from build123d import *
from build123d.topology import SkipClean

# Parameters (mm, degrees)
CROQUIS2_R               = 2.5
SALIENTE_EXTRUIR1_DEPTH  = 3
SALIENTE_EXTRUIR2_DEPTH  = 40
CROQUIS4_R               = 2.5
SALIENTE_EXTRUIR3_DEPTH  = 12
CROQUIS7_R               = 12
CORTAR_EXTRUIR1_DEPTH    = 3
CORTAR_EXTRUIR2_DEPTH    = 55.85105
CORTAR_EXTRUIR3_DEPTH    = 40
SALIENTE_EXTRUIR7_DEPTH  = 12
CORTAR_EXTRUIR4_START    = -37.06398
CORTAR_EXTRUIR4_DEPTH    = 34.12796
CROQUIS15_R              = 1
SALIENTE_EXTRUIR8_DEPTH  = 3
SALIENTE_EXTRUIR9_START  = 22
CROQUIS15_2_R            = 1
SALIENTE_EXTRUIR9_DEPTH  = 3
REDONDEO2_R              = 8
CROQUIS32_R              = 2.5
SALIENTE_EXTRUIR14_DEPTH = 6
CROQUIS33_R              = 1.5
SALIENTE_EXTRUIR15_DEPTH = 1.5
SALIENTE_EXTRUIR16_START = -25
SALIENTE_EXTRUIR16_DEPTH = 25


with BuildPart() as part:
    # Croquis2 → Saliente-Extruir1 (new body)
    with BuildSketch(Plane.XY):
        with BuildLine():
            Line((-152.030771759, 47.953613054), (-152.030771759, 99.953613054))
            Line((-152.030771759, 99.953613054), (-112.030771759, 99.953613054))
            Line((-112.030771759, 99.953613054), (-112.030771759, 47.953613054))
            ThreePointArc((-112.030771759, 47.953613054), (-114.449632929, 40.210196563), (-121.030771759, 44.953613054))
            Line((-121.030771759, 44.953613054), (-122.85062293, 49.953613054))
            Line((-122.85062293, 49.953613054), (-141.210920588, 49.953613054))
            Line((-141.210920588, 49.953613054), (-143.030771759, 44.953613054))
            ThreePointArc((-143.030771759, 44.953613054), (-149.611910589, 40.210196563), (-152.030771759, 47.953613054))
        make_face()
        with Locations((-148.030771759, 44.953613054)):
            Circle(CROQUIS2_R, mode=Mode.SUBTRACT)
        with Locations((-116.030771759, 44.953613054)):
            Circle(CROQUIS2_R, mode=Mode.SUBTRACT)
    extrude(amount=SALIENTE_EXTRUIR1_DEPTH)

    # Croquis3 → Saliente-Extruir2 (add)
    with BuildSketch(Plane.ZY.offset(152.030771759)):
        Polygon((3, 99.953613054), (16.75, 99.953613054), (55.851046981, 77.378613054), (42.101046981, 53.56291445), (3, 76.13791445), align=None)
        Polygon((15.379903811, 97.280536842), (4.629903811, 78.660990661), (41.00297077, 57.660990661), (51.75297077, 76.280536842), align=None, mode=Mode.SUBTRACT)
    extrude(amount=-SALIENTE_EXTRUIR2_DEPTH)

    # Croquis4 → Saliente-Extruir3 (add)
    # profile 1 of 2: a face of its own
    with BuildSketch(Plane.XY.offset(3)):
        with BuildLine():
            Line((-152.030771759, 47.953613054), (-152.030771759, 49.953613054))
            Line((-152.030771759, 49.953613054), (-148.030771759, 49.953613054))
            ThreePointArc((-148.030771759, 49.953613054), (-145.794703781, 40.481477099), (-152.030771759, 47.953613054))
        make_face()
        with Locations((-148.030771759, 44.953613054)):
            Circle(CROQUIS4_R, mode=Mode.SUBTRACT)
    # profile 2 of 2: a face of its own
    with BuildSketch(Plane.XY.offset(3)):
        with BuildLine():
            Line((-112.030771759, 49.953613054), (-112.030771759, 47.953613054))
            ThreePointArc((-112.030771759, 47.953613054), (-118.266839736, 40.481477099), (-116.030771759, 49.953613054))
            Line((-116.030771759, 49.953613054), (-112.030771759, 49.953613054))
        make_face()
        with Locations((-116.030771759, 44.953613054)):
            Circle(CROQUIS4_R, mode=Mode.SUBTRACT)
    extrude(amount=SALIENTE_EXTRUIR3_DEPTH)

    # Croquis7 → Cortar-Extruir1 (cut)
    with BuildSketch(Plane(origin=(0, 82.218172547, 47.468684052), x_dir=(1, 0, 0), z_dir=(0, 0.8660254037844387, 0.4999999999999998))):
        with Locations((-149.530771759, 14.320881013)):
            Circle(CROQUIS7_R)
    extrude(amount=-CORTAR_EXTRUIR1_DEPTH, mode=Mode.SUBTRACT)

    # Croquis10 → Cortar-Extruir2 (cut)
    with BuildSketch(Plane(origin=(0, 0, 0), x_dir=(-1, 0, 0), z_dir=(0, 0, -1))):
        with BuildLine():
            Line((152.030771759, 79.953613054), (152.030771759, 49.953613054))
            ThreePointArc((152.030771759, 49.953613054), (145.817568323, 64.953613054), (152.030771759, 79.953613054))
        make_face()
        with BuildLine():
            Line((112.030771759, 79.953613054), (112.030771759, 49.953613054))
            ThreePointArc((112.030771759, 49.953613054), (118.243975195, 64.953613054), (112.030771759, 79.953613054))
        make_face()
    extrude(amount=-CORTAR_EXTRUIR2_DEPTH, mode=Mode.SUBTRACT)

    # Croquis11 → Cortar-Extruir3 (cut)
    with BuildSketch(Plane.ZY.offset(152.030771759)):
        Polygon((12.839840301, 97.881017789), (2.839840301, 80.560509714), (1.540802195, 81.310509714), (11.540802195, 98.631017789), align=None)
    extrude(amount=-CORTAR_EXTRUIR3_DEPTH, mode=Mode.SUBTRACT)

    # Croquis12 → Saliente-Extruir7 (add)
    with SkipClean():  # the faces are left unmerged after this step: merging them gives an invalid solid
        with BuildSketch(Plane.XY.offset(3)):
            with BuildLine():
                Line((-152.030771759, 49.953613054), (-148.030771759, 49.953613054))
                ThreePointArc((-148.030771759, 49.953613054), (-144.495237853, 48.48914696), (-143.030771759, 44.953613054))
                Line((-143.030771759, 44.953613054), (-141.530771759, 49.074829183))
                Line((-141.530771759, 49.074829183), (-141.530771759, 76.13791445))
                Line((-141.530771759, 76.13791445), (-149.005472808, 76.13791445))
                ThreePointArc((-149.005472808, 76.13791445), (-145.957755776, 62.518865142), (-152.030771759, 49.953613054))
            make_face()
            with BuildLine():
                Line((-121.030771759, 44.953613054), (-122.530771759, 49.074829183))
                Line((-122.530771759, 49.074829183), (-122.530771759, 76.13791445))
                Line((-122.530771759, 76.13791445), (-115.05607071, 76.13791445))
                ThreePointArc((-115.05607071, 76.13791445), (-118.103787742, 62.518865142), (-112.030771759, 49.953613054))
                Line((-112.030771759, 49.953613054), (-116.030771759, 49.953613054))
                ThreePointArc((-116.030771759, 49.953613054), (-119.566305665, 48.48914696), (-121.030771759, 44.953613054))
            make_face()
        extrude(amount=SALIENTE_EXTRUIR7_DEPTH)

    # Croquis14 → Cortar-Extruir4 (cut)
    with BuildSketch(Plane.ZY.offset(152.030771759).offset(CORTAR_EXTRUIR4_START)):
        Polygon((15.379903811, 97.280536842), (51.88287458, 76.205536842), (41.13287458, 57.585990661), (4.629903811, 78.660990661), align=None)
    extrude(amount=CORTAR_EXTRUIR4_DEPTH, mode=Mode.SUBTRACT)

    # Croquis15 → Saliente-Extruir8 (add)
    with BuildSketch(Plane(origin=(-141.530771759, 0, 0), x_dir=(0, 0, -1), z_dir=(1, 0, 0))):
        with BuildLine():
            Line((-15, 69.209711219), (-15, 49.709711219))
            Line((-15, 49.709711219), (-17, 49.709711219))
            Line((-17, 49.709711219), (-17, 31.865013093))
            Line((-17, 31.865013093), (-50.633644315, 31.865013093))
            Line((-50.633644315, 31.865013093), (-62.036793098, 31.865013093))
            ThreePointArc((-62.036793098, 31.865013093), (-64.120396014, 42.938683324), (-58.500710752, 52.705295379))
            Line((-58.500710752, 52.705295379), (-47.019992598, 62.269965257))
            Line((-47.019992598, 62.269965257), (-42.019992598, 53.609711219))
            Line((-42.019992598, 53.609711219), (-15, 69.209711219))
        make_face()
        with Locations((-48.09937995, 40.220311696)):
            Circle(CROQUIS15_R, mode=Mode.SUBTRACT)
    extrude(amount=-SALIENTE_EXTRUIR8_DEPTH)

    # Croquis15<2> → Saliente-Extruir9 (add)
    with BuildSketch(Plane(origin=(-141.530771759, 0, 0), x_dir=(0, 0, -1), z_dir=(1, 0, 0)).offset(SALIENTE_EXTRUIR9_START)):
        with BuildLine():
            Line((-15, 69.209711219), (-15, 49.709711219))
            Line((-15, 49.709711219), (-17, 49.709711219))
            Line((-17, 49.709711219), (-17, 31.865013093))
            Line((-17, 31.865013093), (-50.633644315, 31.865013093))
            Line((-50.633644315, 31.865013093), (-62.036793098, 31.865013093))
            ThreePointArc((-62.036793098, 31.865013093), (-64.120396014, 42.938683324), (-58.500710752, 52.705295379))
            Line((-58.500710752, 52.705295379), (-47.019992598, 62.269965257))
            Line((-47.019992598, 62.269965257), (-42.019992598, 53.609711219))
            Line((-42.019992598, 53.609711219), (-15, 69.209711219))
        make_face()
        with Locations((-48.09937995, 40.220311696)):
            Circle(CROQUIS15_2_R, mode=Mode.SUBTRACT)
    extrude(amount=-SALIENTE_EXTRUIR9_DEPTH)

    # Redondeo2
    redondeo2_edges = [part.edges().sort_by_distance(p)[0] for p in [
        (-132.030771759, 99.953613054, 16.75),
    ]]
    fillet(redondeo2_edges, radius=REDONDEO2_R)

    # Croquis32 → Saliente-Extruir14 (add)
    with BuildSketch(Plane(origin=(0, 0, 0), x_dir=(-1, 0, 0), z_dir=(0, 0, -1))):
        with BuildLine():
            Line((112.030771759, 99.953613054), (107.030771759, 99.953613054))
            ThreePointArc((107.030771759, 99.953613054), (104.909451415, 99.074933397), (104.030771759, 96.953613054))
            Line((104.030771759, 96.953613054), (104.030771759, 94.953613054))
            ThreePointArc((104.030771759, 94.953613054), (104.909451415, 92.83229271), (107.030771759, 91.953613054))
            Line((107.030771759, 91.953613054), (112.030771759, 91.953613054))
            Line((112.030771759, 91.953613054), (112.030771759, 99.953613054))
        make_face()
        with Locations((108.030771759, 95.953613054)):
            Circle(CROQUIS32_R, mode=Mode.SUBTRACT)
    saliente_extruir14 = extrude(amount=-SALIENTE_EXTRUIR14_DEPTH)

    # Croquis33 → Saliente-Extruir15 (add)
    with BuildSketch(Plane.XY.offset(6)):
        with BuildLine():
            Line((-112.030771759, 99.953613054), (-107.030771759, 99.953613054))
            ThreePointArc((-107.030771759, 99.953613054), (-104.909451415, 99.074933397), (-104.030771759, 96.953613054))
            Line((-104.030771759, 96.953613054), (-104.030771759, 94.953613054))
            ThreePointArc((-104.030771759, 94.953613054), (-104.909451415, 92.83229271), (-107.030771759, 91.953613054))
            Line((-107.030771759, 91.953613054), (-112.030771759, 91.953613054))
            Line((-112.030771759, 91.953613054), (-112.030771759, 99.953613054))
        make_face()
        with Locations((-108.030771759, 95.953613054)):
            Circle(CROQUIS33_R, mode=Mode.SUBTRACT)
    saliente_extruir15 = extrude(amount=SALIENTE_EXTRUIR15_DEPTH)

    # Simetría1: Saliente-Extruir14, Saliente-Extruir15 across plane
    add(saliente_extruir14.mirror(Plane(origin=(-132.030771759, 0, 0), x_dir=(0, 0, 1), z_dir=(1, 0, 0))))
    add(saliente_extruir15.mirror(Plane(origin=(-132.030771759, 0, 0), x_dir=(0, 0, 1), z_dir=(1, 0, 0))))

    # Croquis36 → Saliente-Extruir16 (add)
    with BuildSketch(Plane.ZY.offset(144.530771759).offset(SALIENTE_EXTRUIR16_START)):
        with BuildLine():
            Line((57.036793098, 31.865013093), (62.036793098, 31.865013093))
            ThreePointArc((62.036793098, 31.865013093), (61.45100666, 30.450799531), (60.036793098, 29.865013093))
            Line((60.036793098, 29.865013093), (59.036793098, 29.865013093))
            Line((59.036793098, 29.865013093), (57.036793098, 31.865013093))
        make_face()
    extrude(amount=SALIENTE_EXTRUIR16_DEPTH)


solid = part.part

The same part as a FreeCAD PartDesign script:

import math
import FreeCAD as App
import Part
import Sketcher
Q = App.Units.Quantity


def edges_at(feature, points):
    """Names of the edges that pass closest to the given points."""
    edges = feature.Shape.Edges
    near = lambda p: min(range(len(edges)), key=lambda i: edges[i].distToShape(Part.Vertex(*p))[0])
    return sorted({f"Edge{near(p) + 1}" for p in points})

doc = App.newDocument("Part")
body = doc.addObject("PartDesign::Body", "Body")

# Sketch on XY plane
sketch1 = body.newObject("Sketcher::SketchObject", "Sketch")
sketch1.AttachmentSupport = (doc.getObject("XY_Plane"), [""])
sketch1.MapMode = "FlatFace"
sketch1.addGeometry(Part.LineSegment(App.Vector(-152, 100, 0), App.Vector(-152, 48, 0)), False)
sketch1.addGeometry(Part.ArcOfCircle(Part.Circle(App.Vector(-148, 45, 0), App.Vector(0, 0, 1), 5), math.radians(143), math.radians(360)), False)
sketch1.addGeometry(Part.LineSegment(App.Vector(-143, 45, 0), App.Vector(-141.2, 50, 0)), False)
sketch1.addGeometry(Part.LineSegment(App.Vector(-141.2, 50, 0), App.Vector(-122.9, 50, 0)), False)
sketch1.addGeometry(Part.LineSegment(App.Vector(-122.9, 50, 0), App.Vector(-121, 45, 0)), False)
sketch1.addGeometry(Part.ArcOfCircle(Part.Circle(App.Vector(-116, 45, 0), App.Vector(0, 0, 1), 5), math.radians(180), math.radians(397)), False)
sketch1.addGeometry(Part.LineSegment(App.Vector(-112, 48, 0), App.Vector(-112, 100, 0)), False)
sketch1.addGeometry(Part.LineSegment(App.Vector(-112, 100, 0), App.Vector(-152, 100, 0)), False)
sketch1.addGeometry(Part.Circle(App.Vector(-116, 45, 0), App.Vector(0, 0, 1), 2.5), False)
sketch1.addGeometry(Part.Circle(App.Vector(-148, 45, 0), App.Vector(0, 0, 1), 2.5), False)
sketch1.addConstraint(Sketcher.Constraint("Coincident", 0, 2, 1, 1))
sketch1.addConstraint(Sketcher.Constraint("Coincident", 1, 2, 2, 1))
sketch1.addConstraint(Sketcher.Constraint("Coincident", 2, 2, 3, 1))
sketch1.addConstraint(Sketcher.Constraint("Coincident", 3, 2, 4, 1))
sketch1.addConstraint(Sketcher.Constraint("Coincident", 4, 2, 5, 1))
sketch1.addConstraint(Sketcher.Constraint("Coincident", 5, 2, 6, 1))
sketch1.addConstraint(Sketcher.Constraint("Coincident", 6, 2, 7, 1))
sketch1.addConstraint(Sketcher.Constraint("Coincident", 7, 2, 0, 1))
sketch1.addConstraint(Sketcher.Constraint("Vertical", 0))
sketch1.addConstraint(Sketcher.Constraint("Horizontal", 3))
sketch1.addConstraint(Sketcher.Constraint("Vertical", 6))
sketch1.addConstraint(Sketcher.Constraint("Horizontal", 7))
sketch1.addConstraint(Sketcher.Constraint("Coincident", 8, 3, 5, 3))
sketch1.addConstraint(Sketcher.Constraint("Coincident", 9, 3, 1, 3))
sketch1.addConstraint(Sketcher.Constraint("Equal", 1, 5))
sketch1.addConstraint(Sketcher.Constraint("Equal", 8, 9))
sketch1.addConstraint(Sketcher.Constraint("Horizontal", 1, 3, 5, 3))
sketch1.addConstraint(Sketcher.Constraint("Horizontal", 9, 3, 1, 2))
sketch1.addConstraint(Sketcher.Constraint("Horizontal", 1, 2, 4, 2))
sketch1.addConstraint(Sketcher.Constraint("Horizontal", 0, 2, 5, 2))
sketch1.addConstraint(Sketcher.Constraint("Equal", 2, 4))
sketch1.addConstraint(Sketcher.Constraint("Diameter", 8, 5.0))
sketch1.addConstraint(Sketcher.Constraint("Radius", 1, 5.0))
sketch1.addConstraint(Sketcher.Constraint("DistanceX", 7, 2, 7, 1, 40.0))
sketch1.addConstraint(Sketcher.Constraint("DistanceY", 0, 2, 0, 1, 52.0))
sketch1.addConstraint(Sketcher.Constraint("Angle", 2, Q("70 deg")))
sketch1.addConstraint(Sketcher.Constraint("DistanceX", 1, 3, 5, 3, 32.0))
sketch1.addConstraint(Sketcher.Constraint("DistanceY", 1, 2, 2, 2, 5.0))
sketch1.addConstraint(Sketcher.Constraint("DistanceX", 1, 3, -1, 1, 148.030772))
sketch1.addConstraint(Sketcher.Constraint("DistanceY", -1, 1, 1, 3, 44.953613))
pad1 = body.newObject("PartDesign::Pad", "Pad")
pad1.Profile = sketch1
pad1.Length = 3

# Sketch on YZ plane
sketch2 = body.newObject("Sketcher::SketchObject", "Sketch001")
sketch2.AttachmentSupport = (doc.getObject("YZ_Plane"), [""])
sketch2.MapMode = "FlatFace"
sketch2.AttachmentOffset = App.Placement(App.Vector(0, 0, -152.030772), App.Rotation())
sketch2.addGeometry(Part.LineSegment(App.Vector(100, 17, 0), App.Vector(100, 3, 0)), False)
sketch2.addGeometry(Part.LineSegment(App.Vector(100, 3, 0), App.Vector(76, 3, 0)), False)
sketch2.addGeometry(Part.LineSegment(App.Vector(76, 3, 0), App.Vector(54, 42, 0)), False)
sketch2.addGeometry(Part.LineSegment(App.Vector(54, 42, 0), App.Vector(77, 56, 0)), False)
sketch2.addGeometry(Part.LineSegment(App.Vector(77, 56, 0), App.Vector(100, 17, 0)), False)
sketch2.addGeometry(Part.LineSegment(App.Vector(97, 15, 0), App.Vector(76, 52, 0)), False)
sketch2.addGeometry(Part.LineSegment(App.Vector(76, 52, 0), App.Vector(58, 41, 0)), False)
sketch2.addGeometry(Part.LineSegment(App.Vector(58, 41, 0), App.Vector(79, 5, 0)), False)
sketch2.addGeometry(Part.LineSegment(App.Vector(79, 5, 0), App.Vector(97, 15, 0)), False)
sketch2.addConstraint(Sketcher.Constraint("Coincident", 0, 2, 1, 1))
sketch2.addConstraint(Sketcher.Constraint("Coincident", 1, 2, 2, 1))
sketch2.addConstraint(Sketcher.Constraint("Coincident", 2, 2, 3, 1))
sketch2.addConstraint(Sketcher.Constraint("Coincident", 3, 2, 4, 1))
sketch2.addConstraint(Sketcher.Constraint("Coincident", 4, 2, 0, 1))
sketch2.addConstraint(Sketcher.Constraint("Coincident", 5, 2, 6, 1))
sketch2.addConstraint(Sketcher.Constraint("Coincident", 6, 2, 7, 1))
sketch2.addConstraint(Sketcher.Constraint("Coincident", 7, 2, 8, 1))
sketch2.addConstraint(Sketcher.Constraint("Coincident", 8, 2, 5, 1))
sketch2.addConstraint(Sketcher.Constraint("Vertical", 0))
sketch2.addConstraint(Sketcher.Constraint("Horizontal", 1))
sketch2.addConstraint(Sketcher.Constraint("Perpendicular", 2, 3))
sketch2.addConstraint(Sketcher.Constraint("Perpendicular", 3, 4))
sketch2.addConstraint(Sketcher.Constraint("Parallel", 4, 5))
sketch2.addConstraint(Sketcher.Constraint("Perpendicular", 5, 6))
sketch2.addConstraint(Sketcher.Constraint("Perpendicular", 6, 7))
sketch2.addConstraint(Sketcher.Constraint("Perpendicular", 7, 8))
sketch2.addConstraint(Sketcher.Constraint("Equal", 2, 4))
sketch2.addConstraint(Sketcher.Constraint("Angle", 2, Q("120 deg")))
sketch2.addConstraint(Sketcher.Constraint("Distance", 5, 42.0))
sketch2.addConstraint(Sketcher.Constraint("DistanceY", -1, 1, 0, 2, 3.0))
sketch2.addConstraint(Sketcher.Constraint("Distance", 3, 27.5))
sketch2.addConstraint(Sketcher.Constraint("Distance", 6, 21.5))
sketch2.addConstraint(Sketcher.Constraint("Distance", 2, 45.15))
sketch2.addConstraint(Sketcher.Constraint("DistanceY", -1, 1, 5, 2, 51.752971))
sketch2.addConstraint(Sketcher.Constraint("DistanceX", -1, 1, 6, 2, 57.660991))
sketch2.addConstraint(Sketcher.Constraint("DistanceX", -1, 1, 0, 2, 99.953613))
pad2 = body.newObject("PartDesign::Pad", "Pad001")
pad2.Profile = sketch2
pad2.Length = 40

# Sketch on XY plane
sketch3 = body.newObject("Sketcher::SketchObject", "Sketch002")
sketch3.AttachmentSupport = (doc.getObject("XY_Plane"), [""])
sketch3.MapMode = "FlatFace"
sketch3.AttachmentOffset = App.Placement(App.Vector(0, 0, 3), App.Rotation())
sketch3.addGeometry(Part.LineSegment(App.Vector(-152, 50, 0), App.Vector(-152, 48, 0)), False)
sketch3.addGeometry(Part.ArcOfCircle(Part.Circle(App.Vector(-148, 45, 0), App.Vector(0, 0, 1), 5), math.radians(143), math.radians(450)), False)
sketch3.addGeometry(Part.LineSegment(App.Vector(-148, 50, 0), App.Vector(-152, 50, 0)), False)
sketch3.addGeometry(Part.Circle(App.Vector(-148, 45, 0), App.Vector(0, 0, 1), 2.5), False)
sketch3.addGeometry(Part.LineSegment(App.Vector(-112, 48, 0), App.Vector(-112, 50, 0)), False)
sketch3.addGeometry(Part.LineSegment(App.Vector(-112, 50, 0), App.Vector(-116, 50, 0)), False)
sketch3.addGeometry(Part.ArcOfCircle(Part.Circle(App.Vector(-116, 45, 0), App.Vector(0, 0, 1), 5), math.radians(90), math.radians(397)), False)
sketch3.addGeometry(Part.Circle(App.Vector(-116, 45, 0), App.Vector(0, 0, 1), 2.5), False)
sketch3.addConstraint(Sketcher.Constraint("Coincident", 0, 2, 1, 1))
sketch3.addConstraint(Sketcher.Constraint("Tangent", 1, 2, 2, 1))
sketch3.addConstraint(Sketcher.Constraint("Coincident", 2, 2, 0, 1))
sketch3.addConstraint(Sketcher.Constraint("Coincident", 4, 2, 5, 1))
sketch3.addConstraint(Sketcher.Constraint("Tangent", 5, 2, 6, 1))
sketch3.addConstraint(Sketcher.Constraint("Coincident", 6, 2, 4, 1))
sketch3.addConstraint(Sketcher.Constraint("Vertical", 0))
sketch3.addConstraint(Sketcher.Constraint("Horizontal", 2))
sketch3.addConstraint(Sketcher.Constraint("Vertical", 4))
sketch3.addConstraint(Sketcher.Constraint("Horizontal", 5))
sketch3.addConstraint(Sketcher.Constraint("Coincident", 3, 3, 1, 3))
sketch3.addConstraint(Sketcher.Constraint("Coincident", 7, 3, 6, 3))
sketch3.addConstraint(Sketcher.Constraint("Equal", 1, 6))
sketch3.addConstraint(Sketcher.Constraint("Equal", 3, 7))
sketch3.addConstraint(Sketcher.Constraint("Horizontal", 3, 3, 6, 3))
sketch3.addConstraint(Sketcher.Constraint("Horizontal", 0, 2, 6, 2))
sketch3.addConstraint(Sketcher.Constraint("Diameter", 3, 5.0))
sketch3.addConstraint(Sketcher.Constraint("Radius", 1, 5.0))
sketch3.addConstraint(Sketcher.Constraint("DistanceX", 2, 2, 2, 1, 4.0))
sketch3.addConstraint(Sketcher.Constraint("DistanceX", 1, 3, 6, 3, 32.0))
sketch3.addConstraint(Sketcher.Constraint("DistanceX", 1, 3, -1, 1, 148.030772))
sketch3.addConstraint(Sketcher.Constraint("DistanceY", -1, 1, 1, 3, 44.953613))
pad3 = body.newObject("PartDesign::Pad", "Pad002")
pad3.Profile = sketch3
pad3.Length = 12

# Sketch on an angled plane
sketch4 = body.newObject("Sketcher::SketchObject", "Sketch003")
sketch4.Placement = App.Placement(App.Vector(0, 82.218173, 47.468684), App.Rotation(App.Vector(1, 0, 0), App.Vector(0, 0.5, -0.866025404), App.Vector(0, 0.866025404, 0.5), "ZXY"))
sketch4.addGeometry(Part.Circle(App.Vector(-150, 14, 0), App.Vector(0, 0, 1), 12), False)
sketch4.addConstraint(Sketcher.Constraint("Diameter", 0, 24.0))
sketch4.addConstraint(Sketcher.Constraint("DistanceX", 0, 3, -1, 1, 149.530772))
sketch4.addConstraint(Sketcher.Constraint("DistanceY", -1, 1, 0, 3, 14.320881))
pocket1 = body.newObject("PartDesign::Pocket", "Pocket")
pocket1.Profile = sketch4
pocket1.Length = 3

# Sketch on XY plane
sketch5 = body.newObject("Sketcher::SketchObject", "Sketch004")
sketch5.AttachmentSupport = (doc.getObject("XY_Plane"), [""])
sketch5.MapMode = "FlatFace"
sketch5.addGeometry(Part.LineSegment(App.Vector(-152, 50, 0), App.Vector(-152, 80, 0)), False)
sketch5.addGeometry(Part.ArcOfCircle(Part.Circle(App.Vector(-167, 65, 0), App.Vector(0, 0, 1), 21), math.radians(-45), math.radians(45)), False)
sketch5.addGeometry(Part.LineSegment(App.Vector(-112, 80, 0), App.Vector(-112, 50, 0)), False)
sketch5.addGeometry(Part.ArcOfCircle(Part.Circle(App.Vector(-97, 65, 0), App.Vector(0, 0, 1), 21), math.radians(135), math.radians(225)), False)
sketch5.addConstraint(Sketcher.Constraint("Coincident", 0, 1, 1, 1))
sketch5.addConstraint(Sketcher.Constraint("Coincident", 1, 2, 0, 2))
sketch5.addConstraint(Sketcher.Constraint("Coincident", 2, 1, 3, 1))
sketch5.addConstraint(Sketcher.Constraint("Coincident", 3, 2, 2, 2))
sketch5.addConstraint(Sketcher.Constraint("Vertical", 0))
sketch5.addConstraint(Sketcher.Constraint("Vertical", 2))
sketch5.addConstraint(Sketcher.Constraint("Equal", 1, 3))
sketch5.addConstraint(Sketcher.Constraint("Horizontal", 1, 3, 3, 3))
sketch5.addConstraint(Sketcher.Constraint("Horizontal", 1, 2, 2, 1))
sketch5.addConstraint(Sketcher.Constraint("DistanceY", 0, 1, 0, 2, 30.0))
sketch5.addConstraint(Sketcher.Constraint("DistanceX", 1, 3, 3, 3, 70.0))
sketch5.addConstraint(Sketcher.Constraint("DistanceX", 1, 3, 0, 1, 15.0))
sketch5.addConstraint(Sketcher.Constraint("DistanceX", 1, 3, -1, 1, 167.030772))
sketch5.addConstraint(Sketcher.Constraint("DistanceY", -1, 1, 1, 3, 64.953613))
pocket2 = body.newObject("PartDesign::Pocket", "Pocket001")
pocket2.Profile = sketch5
pocket2.Length = 55.85105
pocket2.Reversed = True

# Sketch on YZ plane
sketch6 = body.newObject("Sketcher::SketchObject", "Sketch005")
sketch6.AttachmentSupport = (doc.getObject("YZ_Plane"), [""])
sketch6.MapMode = "FlatFace"
sketch6.AttachmentOffset = App.Placement(App.Vector(0, 0, -152.030772), App.Rotation())
sketch6.addGeometry(Part.LineSegment(App.Vector(80.6, 2.8, 0), App.Vector(97.9, 12.8, 0)), False)
sketch6.addGeometry(Part.LineSegment(App.Vector(97.9, 12.8, 0), App.Vector(98.6, 11.5, 0)), False)
sketch6.addGeometry(Part.LineSegment(App.Vector(98.6, 11.5, 0), App.Vector(81.3, 1.5, 0)), False)
sketch6.addGeometry(Part.LineSegment(App.Vector(81.3, 1.5, 0), App.Vector(80.6, 2.8, 0)), False)
sketch6.addConstraint(Sketcher.Constraint("Coincident", 0, 2, 1, 1))
sketch6.addConstraint(Sketcher.Constraint("Coincident", 1, 2, 2, 1))
sketch6.addConstraint(Sketcher.Constraint("Coincident", 2, 2, 3, 1))
sketch6.addConstraint(Sketcher.Constraint("Coincident", 3, 2, 0, 1))
sketch6.addConstraint(Sketcher.Constraint("Perpendicular", 0, 1))
sketch6.addConstraint(Sketcher.Constraint("Perpendicular", 1, 2))
sketch6.addConstraint(Sketcher.Constraint("Perpendicular", 2, 3))
sketch6.addConstraint(Sketcher.Constraint("Angle", 0, Q("30 deg")))
sketch6.addConstraint(Sketcher.Constraint("Distance", 0, 20.0))
sketch6.addConstraint(Sketcher.Constraint("Distance", 1, 1.5))
sketch6.addConstraint(Sketcher.Constraint("DistanceY", -1, 1, 0, 2, 12.83984))
sketch6.addConstraint(Sketcher.Constraint("DistanceX", -1, 1, 2, 2, 81.31051))
pocket3 = body.newObject("PartDesign::Pocket", "Pocket002")
pocket3.Profile = sketch6
pocket3.Length = 40
pocket3.Reversed = True

# Sketch on XY plane
sketch7 = body.newObject("Sketcher::SketchObject", "Sketch006")
sketch7.AttachmentSupport = (doc.getObject("XY_Plane"), [""])
sketch7.MapMode = "FlatFace"
sketch7.AttachmentOffset = App.Placement(App.Vector(0, 0, 3), App.Rotation())
sketch7.addGeometry(Part.LineSegment(App.Vector(-152, 50, 0), App.Vector(-148, 50, 0)), False)
sketch7.addGeometry(Part.ArcOfCircle(Part.Circle(App.Vector(-148, 45, 0), App.Vector(0, 0, 1), 5), math.radians(0), math.radians(90)), False)
sketch7.addGeometry(Part.LineSegment(App.Vector(-143, 45, 0), App.Vector(-141.5, 49.1, 0)), False)
sketch7.addGeometry(Part.LineSegment(App.Vector(-141.5, 49.1, 0), App.Vector(-141.5, 76.1, 0)), False)
sketch7.addGeometry(Part.LineSegment(App.Vector(-141.5, 76.1, 0), App.Vector(-149, 76.1, 0)), False)
sketch7.addGeometry(Part.ArcOfCircle(Part.Circle(App.Vector(-167, 65, 0), App.Vector(0, 0, 1), 21.2), math.radians(-45), math.radians(32)), False)
sketch7.addGeometry(Part.LineSegment(App.Vector(-122.5, 49.1, 0), App.Vector(-121, 45, 0)), False)
sketch7.addGeometry(Part.ArcOfCircle(Part.Circle(App.Vector(-116, 45, 0), App.Vector(0, 0, 1), 5), math.radians(90), math.radians(180)), False)
sketch7.addGeometry(Part.LineSegment(App.Vector(-116, 50, 0), App.Vector(-112, 50, 0)), False)
sketch7.addGeometry(Part.ArcOfCircle(Part.Circle(App.Vector(-97, 65, 0), App.Vector(0, 0, 1), 21.2), math.radians(148), math.radians(225)), False)
sketch7.addGeometry(Part.LineSegment(App.Vector(-115.1, 76.1, 0), App.Vector(-122.5, 76.1, 0)), False)
sketch7.addGeometry(Part.LineSegment(App.Vector(-122.5, 76.1, 0), App.Vector(-122.5, 49.1, 0)), False)
sketch7.addConstraint(Sketcher.Constraint("Tangent", 0, 2, 1, 2))
sketch7.addConstraint(Sketcher.Constraint("Coincident", 1, 1, 2, 1))
sketch7.addConstraint(Sketcher.Constraint("Coincident", 2, 2, 3, 1))
sketch7.addConstraint(Sketcher.Constraint("Coincident", 3, 2, 4, 1))
sketch7.addConstraint(Sketcher.Constraint("Coincident", 4, 2, 5, 2))
sketch7.addConstraint(Sketcher.Constraint("Coincident", 5, 1, 0, 1))
sketch7.addConstraint(Sketcher.Constraint("Coincident", 6, 2, 7, 2))
sketch7.addConstraint(Sketcher.Constraint("Tangent", 7, 1, 8, 1))
sketch7.addConstraint(Sketcher.Constraint("Coincident", 8, 2, 9, 2))
sketch7.addConstraint(Sketcher.Constraint("Coincident", 9, 1, 10, 1))
sketch7.addConstraint(Sketcher.Constraint("Coincident", 10, 2, 11, 1))
sketch7.addConstraint(Sketcher.Constraint("Coincident", 11, 2, 6, 1))
sketch7.addConstraint(Sketcher.Constraint("Horizontal", 0))
sketch7.addConstraint(Sketcher.Constraint("Vertical", 3))
sketch7.addConstraint(Sketcher.Constraint("Horizontal", 4))
sketch7.addConstraint(Sketcher.Constraint("Horizontal", 8))
sketch7.addConstraint(Sketcher.Constraint("Horizontal", 10))
sketch7.addConstraint(Sketcher.Constraint("Vertical", 11))
sketch7.addConstraint(Sketcher.Constraint("Equal", 1, 7))
sketch7.addConstraint(Sketcher.Constraint("Equal", 5, 9))
sketch7.addConstraint(Sketcher.Constraint("Horizontal", 1, 3, 7, 3))
sketch7.addConstraint(Sketcher.Constraint("Horizontal", 5, 3, 9, 3))
sketch7.addConstraint(Sketcher.Constraint("Horizontal", 7, 3, 1, 1))
sketch7.addConstraint(Sketcher.Constraint("Horizontal", 1, 1, 6, 2))
sketch7.addConstraint(Sketcher.Constraint("Horizontal", 4, 2, 9, 1))
sketch7.addConstraint(Sketcher.Constraint("Horizontal", 2, 2, 11, 2))
sketch7.addConstraint(Sketcher.Constraint("Equal", 0, 8))
sketch7.addConstraint(Sketcher.Constraint("Equal", 4, 10))
sketch7.addConstraint(Sketcher.Constraint("Radius", 1, 5.0))
sketch7.addConstraint(Sketcher.Constraint("DistanceX", 0, 1, 0, 2, 4.0))
sketch7.addConstraint(Sketcher.Constraint("Angle", 2, Q("70 deg")))
sketch7.addConstraint(Sketcher.Constraint("DistanceX", 5, 3, 1, 3, 19.0))
sketch7.addConstraint(Sketcher.Constraint("DistanceY", 1, 3, 5, 3, 20.0))
sketch7.addConstraint(Sketcher.Constraint("DistanceX", 1, 3, 7, 3, 32.0))
sketch7.addConstraint(Sketcher.Constraint("DistanceX", 3, 2, 10, 2, 19.0))
sketch7.addConstraint(Sketcher.Constraint("DistanceX", 4, 2, 4, 1, 7.474701))
sketch7.addConstraint(Sketcher.Constraint("DistanceX", 1, 3, -1, 1, 148.030772))
sketch7.addConstraint(Sketcher.Constraint("DistanceY", -1, 1, 2, 2, 49.074829))
pad4 = body.newObject("PartDesign::Pad", "Pad003")
pad4.Profile = sketch7
pad4.Length = 12

# Sketch on YZ plane
sketch8 = body.newObject("Sketcher::SketchObject", "Sketch007")
sketch8.AttachmentSupport = (doc.getObject("YZ_Plane"), [""])
sketch8.MapMode = "FlatFace"
sketch8.AttachmentOffset = App.Placement(App.Vector(0, 0, -114.966792), App.Rotation())
sketch8.addGeometry(Part.LineSegment(App.Vector(76, 52, 0), App.Vector(97, 15, 0)), False)
sketch8.addGeometry(Part.LineSegment(App.Vector(97, 15, 0), App.Vector(79, 5, 0)), False)
sketch8.addGeometry(Part.LineSegment(App.Vector(79, 5, 0), App.Vector(58, 41, 0)), False)
sketch8.addGeometry(Part.LineSegment(App.Vector(58, 41, 0), App.Vector(76, 52, 0)), False)
sketch8.addConstraint(Sketcher.Constraint("Coincident", 0, 2, 1, 1))
sketch8.addConstraint(Sketcher.Constraint("Coincident", 1, 2, 2, 1))
sketch8.addConstraint(Sketcher.Constraint("Coincident", 2, 2, 3, 1))
sketch8.addConstraint(Sketcher.Constraint("Coincident", 3, 2, 0, 1))
sketch8.addConstraint(Sketcher.Constraint("Perpendicular", 0, 1))
sketch8.addConstraint(Sketcher.Constraint("Perpendicular", 1, 2))
sketch8.addConstraint(Sketcher.Constraint("Perpendicular", 2, 3))
sketch8.addConstraint(Sketcher.Constraint("Angle", 0, Q("-60 deg")))
sketch8.addConstraint(Sketcher.Constraint("Distance", 1, 21.5))
sketch8.addConstraint(Sketcher.Constraint("Distance", 0, 42.15))
sketch8.addConstraint(Sketcher.Constraint("DistanceX", -1, 1, 1, 2, 78.660991))
sketch8.addConstraint(Sketcher.Constraint("DistanceY", -1, 1, 0, 2, 15.379904))
pocket4 = body.newObject("PartDesign::Pocket", "Pocket003")
pocket4.Profile = sketch8
pocket4.Length = 34.12796

# Sketch on YZ plane
sketch9 = body.newObject("Sketcher::SketchObject", "Sketch008")
sketch9.AttachmentSupport = (doc.getObject("YZ_Plane"), [""])
sketch9.MapMode = "FlatFace"
sketch9.AttachmentOffset = App.Placement(App.Vector(0, 0, -141.530772), App.Rotation())
sketch9.addGeometry(Part.LineSegment(App.Vector(49.7, 15, 0), App.Vector(69.2, 15, 0)), False)
sketch9.addGeometry(Part.LineSegment(App.Vector(69.2, 15, 0), App.Vector(53.6, 42, 0)), False)
sketch9.addGeometry(Part.LineSegment(App.Vector(53.6, 42, 0), App.Vector(62.3, 47, 0)), False)
sketch9.addGeometry(Part.LineSegment(App.Vector(62.3, 47, 0), App.Vector(52.7, 58.5, 0)), False)
sketch9.addGeometry(Part.ArcOfCircle(Part.Circle(App.Vector(40.2, 48.1, 0), App.Vector(0, 0, 1), 16.2), math.radians(40), math.radians(121)), False)
sketch9.addGeometry(Part.LineSegment(App.Vector(31.9, 62, 0), App.Vector(31.9, 17, 0)), False)
sketch9.addGeometry(Part.LineSegment(App.Vector(31.9, 17, 0), App.Vector(49.7, 17, 0)), False)
sketch9.addGeometry(Part.LineSegment(App.Vector(49.7, 17, 0), App.Vector(49.7, 15, 0)), False)
sketch9.addGeometry(Part.Circle(App.Vector(40.2, 48.1, 0), App.Vector(0, 0, 1), 1), False)
sketch9.addConstraint(Sketcher.Constraint("Coincident", 0, 2, 1, 1))
sketch9.addConstraint(Sketcher.Constraint("Coincident", 1, 2, 2, 1))
sketch9.addConstraint(Sketcher.Constraint("Coincident", 2, 2, 3, 1))
sketch9.addConstraint(Sketcher.Constraint("Tangent", 3, 2, 4, 1))
sketch9.addConstraint(Sketcher.Constraint("Coincident", 4, 2, 5, 1))
sketch9.addConstraint(Sketcher.Constraint("Coincident", 5, 2, 6, 1))
sketch9.addConstraint(Sketcher.Constraint("Coincident", 6, 2, 7, 1))
sketch9.addConstraint(Sketcher.Constraint("Coincident", 7, 2, 0, 1))
sketch9.addConstraint(Sketcher.Constraint("Horizontal", 0))
sketch9.addConstraint(Sketcher.Constraint("Vertical", 5))
sketch9.addConstraint(Sketcher.Constraint("Horizontal", 6))
sketch9.addConstraint(Sketcher.Constraint("Vertical", 7))
sketch9.addConstraint(Sketcher.Constraint("Coincident", 8, 3, 4, 3))
sketch9.addConstraint(Sketcher.Constraint("Perpendicular", 1, 2))
sketch9.addConstraint(Sketcher.Constraint("Diameter", 8, 2.0))
sketch9.addConstraint(Sketcher.Constraint("DistanceY", 7, 2, 7, 1, 2.0))
sketch9.addConstraint(Sketcher.Constraint("Angle", 1, Q("120 deg")))
sketch9.addConstraint(Sketcher.Constraint("Radius", 4, 16.25))
sketch9.addConstraint(Sketcher.Constraint("Distance", 2, 10.0))
sketch9.addConstraint(Sketcher.Constraint("DistanceX", 0, 1, 0, 2, 19.5))
sketch9.addConstraint(Sketcher.Constraint("DistanceY", -1, 1, 0, 2, 15.0))
sketch9.addConstraint(Sketcher.Constraint("Distance", 1, 31.2))
sketch9.addConstraint(Sketcher.Constraint("DistanceX", 6, 1, 6, 2, 17.844698))
sketch9.addConstraint(Sketcher.Constraint("DistanceX", 8, 3, 0, 2, 28.9894))
sketch9.addConstraint(Sketcher.Constraint("DistanceY", 1, 2, 4, 2, 20.0168))
sketch9.addConstraint(Sketcher.Constraint("DistanceX", -1, 1, 4, 3, 40.220312))
pad5 = body.newObject("PartDesign::Pad", "Pad004")
pad5.Profile = sketch9
pad5.Length = 3
pad5.Reversed = True

# Sketch on YZ plane
sketch10 = body.newObject("Sketcher::SketchObject", "Sketch009")
sketch10.AttachmentSupport = (doc.getObject("YZ_Plane"), [""])
sketch10.MapMode = "FlatFace"
sketch10.AttachmentOffset = App.Placement(App.Vector(0, 0, -119.530772), App.Rotation())
sketch10.addGeometry(Part.LineSegment(App.Vector(49.7, 15, 0), App.Vector(69.2, 15, 0)), False)
sketch10.addGeometry(Part.LineSegment(App.Vector(69.2, 15, 0), App.Vector(53.6, 42, 0)), False)
sketch10.addGeometry(Part.LineSegment(App.Vector(53.6, 42, 0), App.Vector(62.3, 47, 0)), False)
sketch10.addGeometry(Part.LineSegment(App.Vector(62.3, 47, 0), App.Vector(52.7, 58.5, 0)), False)
sketch10.addGeometry(Part.ArcOfCircle(Part.Circle(App.Vector(40.2, 48.1, 0), App.Vector(0, 0, 1), 16.2), math.radians(40), math.radians(121)), False)
sketch10.addGeometry(Part.LineSegment(App.Vector(31.9, 62, 0), App.Vector(31.9, 17, 0)), False)
sketch10.addGeometry(Part.LineSegment(App.Vector(31.9, 17, 0), App.Vector(49.7, 17, 0)), False)
sketch10.addGeometry(Part.LineSegment(App.Vector(49.7, 17, 0), App.Vector(49.7, 15, 0)), False)
sketch10.addGeometry(Part.Circle(App.Vector(40.2, 48.1, 0), App.Vector(0, 0, 1), 1), False)
sketch10.addConstraint(Sketcher.Constraint("Coincident", 0, 2, 1, 1))
sketch10.addConstraint(Sketcher.Constraint("Coincident", 1, 2, 2, 1))
sketch10.addConstraint(Sketcher.Constraint("Coincident", 2, 2, 3, 1))
sketch10.addConstraint(Sketcher.Constraint("Tangent", 3, 2, 4, 1))
sketch10.addConstraint(Sketcher.Constraint("Coincident", 4, 2, 5, 1))
sketch10.addConstraint(Sketcher.Constraint("Coincident", 5, 2, 6, 1))
sketch10.addConstraint(Sketcher.Constraint("Coincident", 6, 2, 7, 1))
sketch10.addConstraint(Sketcher.Constraint("Coincident", 7, 2, 0, 1))
sketch10.addConstraint(Sketcher.Constraint("Horizontal", 0))
sketch10.addConstraint(Sketcher.Constraint("Vertical", 5))
sketch10.addConstraint(Sketcher.Constraint("Horizontal", 6))
sketch10.addConstraint(Sketcher.Constraint("Vertical", 7))
sketch10.addConstraint(Sketcher.Constraint("Coincident", 8, 3, 4, 3))
sketch10.addConstraint(Sketcher.Constraint("Perpendicular", 1, 2))
sketch10.addConstraint(Sketcher.Constraint("Diameter", 8, 2.0))
sketch10.addConstraint(Sketcher.Constraint("DistanceY", 7, 2, 7, 1, 2.0))
sketch10.addConstraint(Sketcher.Constraint("Angle", 1, Q("120 deg")))
sketch10.addConstraint(Sketcher.Constraint("Radius", 4, 16.25))
sketch10.addConstraint(Sketcher.Constraint("Distance", 2, 10.0))
sketch10.addConstraint(Sketcher.Constraint("DistanceX", 0, 1, 0, 2, 19.5))
sketch10.addConstraint(Sketcher.Constraint("DistanceY", -1, 1, 0, 2, 15.0))
sketch10.addConstraint(Sketcher.Constraint("Distance", 1, 31.2))
sketch10.addConstraint(Sketcher.Constraint("DistanceX", 6, 1, 6, 2, 17.844698))
sketch10.addConstraint(Sketcher.Constraint("DistanceX", 8, 3, 0, 2, 28.9894))
sketch10.addConstraint(Sketcher.Constraint("DistanceY", 1, 2, 4, 2, 20.0168))
sketch10.addConstraint(Sketcher.Constraint("DistanceX", -1, 1, 4, 3, 40.220312))
pad6 = body.newObject("PartDesign::Pad", "Pad005")
pad6.Profile = sketch10
pad6.Length = 3
pad6.Reversed = True
doc.recompute()

fillet = body.newObject("PartDesign::Fillet", "Fillet")
fillet.Base = (pad6, edges_at(pad6, [(-132.031, 99.954, 16.75)]))
fillet.Radius = 8

# Sketch on XY plane
sketch11 = body.newObject("Sketcher::SketchObject", "Sketch010")
sketch11.AttachmentSupport = (doc.getObject("XY_Plane"), [""])
sketch11.MapMode = "FlatFace"
sketch11.addGeometry(Part.LineSegment(App.Vector(-112, 100, 0), App.Vector(-107, 100, 0)), False)
sketch11.addGeometry(Part.ArcOfCircle(Part.Circle(App.Vector(-107, 97, 0), App.Vector(0, 0, 1), 3), math.radians(0), math.radians(90)), False)
sketch11.addGeometry(Part.LineSegment(App.Vector(-104, 97, 0), App.Vector(-104, 95, 0)), False)
sketch11.addGeometry(Part.ArcOfCircle(Part.Circle(App.Vector(-107, 95, 0), App.Vector(0, 0, 1), 3), math.radians(-90), math.radians(0)), False)
sketch11.addGeometry(Part.LineSegment(App.Vector(-107, 92, 0), App.Vector(-112, 92, 0)), False)
sketch11.addGeometry(Part.LineSegment(App.Vector(-112, 92, 0), App.Vector(-112, 100, 0)), False)
sketch11.addGeometry(Part.Circle(App.Vector(-108, 96, 0), App.Vector(0, 0, 1), 2.5), False)
sketch11.addConstraint(Sketcher.Constraint("Tangent", 0, 2, 1, 2))
sketch11.addConstraint(Sketcher.Constraint("Tangent", 1, 1, 2, 1))
sketch11.addConstraint(Sketcher.Constraint("Tangent", 2, 2, 3, 2))
sketch11.addConstraint(Sketcher.Constraint("Tangent", 3, 1, 4, 1))
sketch11.addConstraint(Sketcher.Constraint("Coincident", 4, 2, 5, 1))
sketch11.addConstraint(Sketcher.Constraint("Coincident", 5, 2, 0, 1))
sketch11.addConstraint(Sketcher.Constraint("Horizontal", 0))
sketch11.addConstraint(Sketcher.Constraint("Vertical", 2))
sketch11.addConstraint(Sketcher.Constraint("Horizontal", 4))
sketch11.addConstraint(Sketcher.Constraint("Vertical", 5))
sketch11.addConstraint(Sketcher.Constraint("Equal", 1, 3))
sketch11.addConstraint(Sketcher.Constraint("Diameter", 6, 5.0))
sketch11.addConstraint(Sketcher.Constraint("Radius", 1, 3.0))
sketch11.addConstraint(Sketcher.Constraint("DistanceX", 0, 1, 0, 2, 5.0))
sketch11.addConstraint(Sketcher.Constraint("DistanceY", 2, 2, 2, 1, 2.0))
sketch11.addConstraint(Sketcher.Constraint("DistanceX", 6, 3, 1, 3, 1.0))
sketch11.addConstraint(Sketcher.Constraint("DistanceY", 6, 3, 1, 3, 1.0))
sketch11.addConstraint(Sketcher.Constraint("DistanceX", 1, 3, -1, 1, 107.030772))
sketch11.addConstraint(Sketcher.Constraint("DistanceY", -1, 1, 1, 3, 96.953613))
pad7 = body.newObject("PartDesign::Pad", "Pad006")
pad7.Profile = sketch11
pad7.Length = 6

# Sketch on XY plane
sketch12 = body.newObject("Sketcher::SketchObject", "Sketch011")
sketch12.AttachmentSupport = (doc.getObject("XY_Plane"), [""])
sketch12.MapMode = "FlatFace"
sketch12.AttachmentOffset = App.Placement(App.Vector(0, 0, 6), App.Rotation())
sketch12.addGeometry(Part.LineSegment(App.Vector(-107, 100, 0), App.Vector(-112, 100, 0)), False)
sketch12.addGeometry(Part.LineSegment(App.Vector(-112, 100, 0), App.Vector(-112, 92, 0)), False)
sketch12.addGeometry(Part.LineSegment(App.Vector(-112, 92, 0), App.Vector(-107, 92, 0)), False)
sketch12.addGeometry(Part.ArcOfCircle(Part.Circle(App.Vector(-107, 95, 0), App.Vector(0, 0, 1), 3), math.radians(-90), math.radians(0)), False)
sketch12.addGeometry(Part.LineSegment(App.Vector(-104, 95, 0), App.Vector(-104, 97, 0)), False)
sketch12.addGeometry(Part.ArcOfCircle(Part.Circle(App.Vector(-107, 97, 0), App.Vector(0, 0, 1), 3), math.radians(0), math.radians(90)), False)
sketch12.addGeometry(Part.Circle(App.Vector(-108, 96, 0), App.Vector(0, 0, 1), 1.5), False)
sketch12.addConstraint(Sketcher.Constraint("Coincident", 0, 2, 1, 1))
sketch12.addConstraint(Sketcher.Constraint("Coincident", 1, 2, 2, 1))
sketch12.addConstraint(Sketcher.Constraint("Tangent", 2, 2, 3, 1))
sketch12.addConstraint(Sketcher.Constraint("Tangent", 3, 2, 4, 1))
sketch12.addConstraint(Sketcher.Constraint("Tangent", 4, 2, 5, 1))
sketch12.addConstraint(Sketcher.Constraint("Tangent", 5, 2, 0, 1))
sketch12.addConstraint(Sketcher.Constraint("Horizontal", 0))
sketch12.addConstraint(Sketcher.Constraint("Vertical", 1))
sketch12.addConstraint(Sketcher.Constraint("Horizontal", 2))
sketch12.addConstraint(Sketcher.Constraint("Vertical", 4))
sketch12.addConstraint(Sketcher.Constraint("Equal", 3, 5))
sketch12.addConstraint(Sketcher.Constraint("Diameter", 6, 3.0))
sketch12.addConstraint(Sketcher.Constraint("Radius", 3, 3.0))
sketch12.addConstraint(Sketcher.Constraint("DistanceX", 0, 2, 0, 1, 5.0))
sketch12.addConstraint(Sketcher.Constraint("DistanceY", 1, 2, 1, 1, 8.0))
sketch12.addConstraint(Sketcher.Constraint("DistanceX", 6, 3, 5, 3, 1.0))
sketch12.addConstraint(Sketcher.Constraint("DistanceY", 6, 3, 5, 3, 1.0))
sketch12.addConstraint(Sketcher.Constraint("DistanceX", 3, 3, -1, 1, 107.030772))
sketch12.addConstraint(Sketcher.Constraint("DistanceY", -1, 1, 3, 3, 94.953613))
pad8 = body.newObject("PartDesign::Pad", "Pad007")
pad8.Profile = sketch12
pad8.Length = 1.5
doc.recompute()

datumplane = body.newObject("PartDesign::Plane", "DatumPlane")
datumplane.AttachmentSupport = (doc.getObject("YZ_Plane"), [""])
datumplane.MapMode = "FlatFace"
datumplane.AttachmentOffset = App.Placement(App.Vector(0, 0, -132.030772), App.Rotation())
mirrored = body.newObject("PartDesign::Mirrored", "Mirrored")
mirrored.Originals = [pad7, pad8]
mirrored.MirrorPlane = (datumplane, [""])
body.Tip = mirrored

# Sketch on YZ plane
sketch13 = body.newObject("Sketcher::SketchObject", "Sketch012")
sketch13.AttachmentSupport = (doc.getObject("YZ_Plane"), [""])
sketch13.MapMode = "FlatFace"
sketch13.AttachmentOffset = App.Placement(App.Vector(0, 0, -119.530772), App.Rotation())
sketch13.addGeometry(Part.LineSegment(App.Vector(31.9, 62, 0), App.Vector(31.9, 57, 0)), False)
sketch13.addGeometry(Part.LineSegment(App.Vector(31.9, 57, 0), App.Vector(29.9, 59, 0)), False)
sketch13.addGeometry(Part.LineSegment(App.Vector(29.9, 59, 0), App.Vector(29.9, 60, 0)), False)
sketch13.addGeometry(Part.ArcOfCircle(Part.Circle(App.Vector(31.9, 60, 0), App.Vector(0, 0, 1), 2), math.radians(90), math.radians(180)), False)
sketch13.addConstraint(Sketcher.Constraint("Coincident", 0, 2, 1, 1))
sketch13.addConstraint(Sketcher.Constraint("Coincident", 1, 2, 2, 1))
sketch13.addConstraint(Sketcher.Constraint("Tangent", 2, 2, 3, 2))
sketch13.addConstraint(Sketcher.Constraint("Coincident", 3, 1, 0, 1))
sketch13.addConstraint(Sketcher.Constraint("Vertical", 0))
sketch13.addConstraint(Sketcher.Constraint("Vertical", 2))
sketch13.addConstraint(Sketcher.Constraint("Vertical", 3, 3, 0, 2))
sketch13.addConstraint(Sketcher.Constraint("Radius", 3, 2.0))
sketch13.addConstraint(Sketcher.Constraint("DistanceY", 0, 2, 0, 1, 5.0))
sketch13.addConstraint(Sketcher.Constraint("DistanceY", 2, 1, 2, 2, 1.0))
sketch13.addConstraint(Sketcher.Constraint("DistanceX", -1, 1, 3, 3, 31.865013))
sketch13.addConstraint(Sketcher.Constraint("DistanceY", -1, 1, 3, 3, 60.036793))
pad9 = body.newObject("PartDesign::Pad", "Pad008")
pad9.Profile = sketch13
pad9.Length = 25
pad9.Reversed = True

doc.recompute()
